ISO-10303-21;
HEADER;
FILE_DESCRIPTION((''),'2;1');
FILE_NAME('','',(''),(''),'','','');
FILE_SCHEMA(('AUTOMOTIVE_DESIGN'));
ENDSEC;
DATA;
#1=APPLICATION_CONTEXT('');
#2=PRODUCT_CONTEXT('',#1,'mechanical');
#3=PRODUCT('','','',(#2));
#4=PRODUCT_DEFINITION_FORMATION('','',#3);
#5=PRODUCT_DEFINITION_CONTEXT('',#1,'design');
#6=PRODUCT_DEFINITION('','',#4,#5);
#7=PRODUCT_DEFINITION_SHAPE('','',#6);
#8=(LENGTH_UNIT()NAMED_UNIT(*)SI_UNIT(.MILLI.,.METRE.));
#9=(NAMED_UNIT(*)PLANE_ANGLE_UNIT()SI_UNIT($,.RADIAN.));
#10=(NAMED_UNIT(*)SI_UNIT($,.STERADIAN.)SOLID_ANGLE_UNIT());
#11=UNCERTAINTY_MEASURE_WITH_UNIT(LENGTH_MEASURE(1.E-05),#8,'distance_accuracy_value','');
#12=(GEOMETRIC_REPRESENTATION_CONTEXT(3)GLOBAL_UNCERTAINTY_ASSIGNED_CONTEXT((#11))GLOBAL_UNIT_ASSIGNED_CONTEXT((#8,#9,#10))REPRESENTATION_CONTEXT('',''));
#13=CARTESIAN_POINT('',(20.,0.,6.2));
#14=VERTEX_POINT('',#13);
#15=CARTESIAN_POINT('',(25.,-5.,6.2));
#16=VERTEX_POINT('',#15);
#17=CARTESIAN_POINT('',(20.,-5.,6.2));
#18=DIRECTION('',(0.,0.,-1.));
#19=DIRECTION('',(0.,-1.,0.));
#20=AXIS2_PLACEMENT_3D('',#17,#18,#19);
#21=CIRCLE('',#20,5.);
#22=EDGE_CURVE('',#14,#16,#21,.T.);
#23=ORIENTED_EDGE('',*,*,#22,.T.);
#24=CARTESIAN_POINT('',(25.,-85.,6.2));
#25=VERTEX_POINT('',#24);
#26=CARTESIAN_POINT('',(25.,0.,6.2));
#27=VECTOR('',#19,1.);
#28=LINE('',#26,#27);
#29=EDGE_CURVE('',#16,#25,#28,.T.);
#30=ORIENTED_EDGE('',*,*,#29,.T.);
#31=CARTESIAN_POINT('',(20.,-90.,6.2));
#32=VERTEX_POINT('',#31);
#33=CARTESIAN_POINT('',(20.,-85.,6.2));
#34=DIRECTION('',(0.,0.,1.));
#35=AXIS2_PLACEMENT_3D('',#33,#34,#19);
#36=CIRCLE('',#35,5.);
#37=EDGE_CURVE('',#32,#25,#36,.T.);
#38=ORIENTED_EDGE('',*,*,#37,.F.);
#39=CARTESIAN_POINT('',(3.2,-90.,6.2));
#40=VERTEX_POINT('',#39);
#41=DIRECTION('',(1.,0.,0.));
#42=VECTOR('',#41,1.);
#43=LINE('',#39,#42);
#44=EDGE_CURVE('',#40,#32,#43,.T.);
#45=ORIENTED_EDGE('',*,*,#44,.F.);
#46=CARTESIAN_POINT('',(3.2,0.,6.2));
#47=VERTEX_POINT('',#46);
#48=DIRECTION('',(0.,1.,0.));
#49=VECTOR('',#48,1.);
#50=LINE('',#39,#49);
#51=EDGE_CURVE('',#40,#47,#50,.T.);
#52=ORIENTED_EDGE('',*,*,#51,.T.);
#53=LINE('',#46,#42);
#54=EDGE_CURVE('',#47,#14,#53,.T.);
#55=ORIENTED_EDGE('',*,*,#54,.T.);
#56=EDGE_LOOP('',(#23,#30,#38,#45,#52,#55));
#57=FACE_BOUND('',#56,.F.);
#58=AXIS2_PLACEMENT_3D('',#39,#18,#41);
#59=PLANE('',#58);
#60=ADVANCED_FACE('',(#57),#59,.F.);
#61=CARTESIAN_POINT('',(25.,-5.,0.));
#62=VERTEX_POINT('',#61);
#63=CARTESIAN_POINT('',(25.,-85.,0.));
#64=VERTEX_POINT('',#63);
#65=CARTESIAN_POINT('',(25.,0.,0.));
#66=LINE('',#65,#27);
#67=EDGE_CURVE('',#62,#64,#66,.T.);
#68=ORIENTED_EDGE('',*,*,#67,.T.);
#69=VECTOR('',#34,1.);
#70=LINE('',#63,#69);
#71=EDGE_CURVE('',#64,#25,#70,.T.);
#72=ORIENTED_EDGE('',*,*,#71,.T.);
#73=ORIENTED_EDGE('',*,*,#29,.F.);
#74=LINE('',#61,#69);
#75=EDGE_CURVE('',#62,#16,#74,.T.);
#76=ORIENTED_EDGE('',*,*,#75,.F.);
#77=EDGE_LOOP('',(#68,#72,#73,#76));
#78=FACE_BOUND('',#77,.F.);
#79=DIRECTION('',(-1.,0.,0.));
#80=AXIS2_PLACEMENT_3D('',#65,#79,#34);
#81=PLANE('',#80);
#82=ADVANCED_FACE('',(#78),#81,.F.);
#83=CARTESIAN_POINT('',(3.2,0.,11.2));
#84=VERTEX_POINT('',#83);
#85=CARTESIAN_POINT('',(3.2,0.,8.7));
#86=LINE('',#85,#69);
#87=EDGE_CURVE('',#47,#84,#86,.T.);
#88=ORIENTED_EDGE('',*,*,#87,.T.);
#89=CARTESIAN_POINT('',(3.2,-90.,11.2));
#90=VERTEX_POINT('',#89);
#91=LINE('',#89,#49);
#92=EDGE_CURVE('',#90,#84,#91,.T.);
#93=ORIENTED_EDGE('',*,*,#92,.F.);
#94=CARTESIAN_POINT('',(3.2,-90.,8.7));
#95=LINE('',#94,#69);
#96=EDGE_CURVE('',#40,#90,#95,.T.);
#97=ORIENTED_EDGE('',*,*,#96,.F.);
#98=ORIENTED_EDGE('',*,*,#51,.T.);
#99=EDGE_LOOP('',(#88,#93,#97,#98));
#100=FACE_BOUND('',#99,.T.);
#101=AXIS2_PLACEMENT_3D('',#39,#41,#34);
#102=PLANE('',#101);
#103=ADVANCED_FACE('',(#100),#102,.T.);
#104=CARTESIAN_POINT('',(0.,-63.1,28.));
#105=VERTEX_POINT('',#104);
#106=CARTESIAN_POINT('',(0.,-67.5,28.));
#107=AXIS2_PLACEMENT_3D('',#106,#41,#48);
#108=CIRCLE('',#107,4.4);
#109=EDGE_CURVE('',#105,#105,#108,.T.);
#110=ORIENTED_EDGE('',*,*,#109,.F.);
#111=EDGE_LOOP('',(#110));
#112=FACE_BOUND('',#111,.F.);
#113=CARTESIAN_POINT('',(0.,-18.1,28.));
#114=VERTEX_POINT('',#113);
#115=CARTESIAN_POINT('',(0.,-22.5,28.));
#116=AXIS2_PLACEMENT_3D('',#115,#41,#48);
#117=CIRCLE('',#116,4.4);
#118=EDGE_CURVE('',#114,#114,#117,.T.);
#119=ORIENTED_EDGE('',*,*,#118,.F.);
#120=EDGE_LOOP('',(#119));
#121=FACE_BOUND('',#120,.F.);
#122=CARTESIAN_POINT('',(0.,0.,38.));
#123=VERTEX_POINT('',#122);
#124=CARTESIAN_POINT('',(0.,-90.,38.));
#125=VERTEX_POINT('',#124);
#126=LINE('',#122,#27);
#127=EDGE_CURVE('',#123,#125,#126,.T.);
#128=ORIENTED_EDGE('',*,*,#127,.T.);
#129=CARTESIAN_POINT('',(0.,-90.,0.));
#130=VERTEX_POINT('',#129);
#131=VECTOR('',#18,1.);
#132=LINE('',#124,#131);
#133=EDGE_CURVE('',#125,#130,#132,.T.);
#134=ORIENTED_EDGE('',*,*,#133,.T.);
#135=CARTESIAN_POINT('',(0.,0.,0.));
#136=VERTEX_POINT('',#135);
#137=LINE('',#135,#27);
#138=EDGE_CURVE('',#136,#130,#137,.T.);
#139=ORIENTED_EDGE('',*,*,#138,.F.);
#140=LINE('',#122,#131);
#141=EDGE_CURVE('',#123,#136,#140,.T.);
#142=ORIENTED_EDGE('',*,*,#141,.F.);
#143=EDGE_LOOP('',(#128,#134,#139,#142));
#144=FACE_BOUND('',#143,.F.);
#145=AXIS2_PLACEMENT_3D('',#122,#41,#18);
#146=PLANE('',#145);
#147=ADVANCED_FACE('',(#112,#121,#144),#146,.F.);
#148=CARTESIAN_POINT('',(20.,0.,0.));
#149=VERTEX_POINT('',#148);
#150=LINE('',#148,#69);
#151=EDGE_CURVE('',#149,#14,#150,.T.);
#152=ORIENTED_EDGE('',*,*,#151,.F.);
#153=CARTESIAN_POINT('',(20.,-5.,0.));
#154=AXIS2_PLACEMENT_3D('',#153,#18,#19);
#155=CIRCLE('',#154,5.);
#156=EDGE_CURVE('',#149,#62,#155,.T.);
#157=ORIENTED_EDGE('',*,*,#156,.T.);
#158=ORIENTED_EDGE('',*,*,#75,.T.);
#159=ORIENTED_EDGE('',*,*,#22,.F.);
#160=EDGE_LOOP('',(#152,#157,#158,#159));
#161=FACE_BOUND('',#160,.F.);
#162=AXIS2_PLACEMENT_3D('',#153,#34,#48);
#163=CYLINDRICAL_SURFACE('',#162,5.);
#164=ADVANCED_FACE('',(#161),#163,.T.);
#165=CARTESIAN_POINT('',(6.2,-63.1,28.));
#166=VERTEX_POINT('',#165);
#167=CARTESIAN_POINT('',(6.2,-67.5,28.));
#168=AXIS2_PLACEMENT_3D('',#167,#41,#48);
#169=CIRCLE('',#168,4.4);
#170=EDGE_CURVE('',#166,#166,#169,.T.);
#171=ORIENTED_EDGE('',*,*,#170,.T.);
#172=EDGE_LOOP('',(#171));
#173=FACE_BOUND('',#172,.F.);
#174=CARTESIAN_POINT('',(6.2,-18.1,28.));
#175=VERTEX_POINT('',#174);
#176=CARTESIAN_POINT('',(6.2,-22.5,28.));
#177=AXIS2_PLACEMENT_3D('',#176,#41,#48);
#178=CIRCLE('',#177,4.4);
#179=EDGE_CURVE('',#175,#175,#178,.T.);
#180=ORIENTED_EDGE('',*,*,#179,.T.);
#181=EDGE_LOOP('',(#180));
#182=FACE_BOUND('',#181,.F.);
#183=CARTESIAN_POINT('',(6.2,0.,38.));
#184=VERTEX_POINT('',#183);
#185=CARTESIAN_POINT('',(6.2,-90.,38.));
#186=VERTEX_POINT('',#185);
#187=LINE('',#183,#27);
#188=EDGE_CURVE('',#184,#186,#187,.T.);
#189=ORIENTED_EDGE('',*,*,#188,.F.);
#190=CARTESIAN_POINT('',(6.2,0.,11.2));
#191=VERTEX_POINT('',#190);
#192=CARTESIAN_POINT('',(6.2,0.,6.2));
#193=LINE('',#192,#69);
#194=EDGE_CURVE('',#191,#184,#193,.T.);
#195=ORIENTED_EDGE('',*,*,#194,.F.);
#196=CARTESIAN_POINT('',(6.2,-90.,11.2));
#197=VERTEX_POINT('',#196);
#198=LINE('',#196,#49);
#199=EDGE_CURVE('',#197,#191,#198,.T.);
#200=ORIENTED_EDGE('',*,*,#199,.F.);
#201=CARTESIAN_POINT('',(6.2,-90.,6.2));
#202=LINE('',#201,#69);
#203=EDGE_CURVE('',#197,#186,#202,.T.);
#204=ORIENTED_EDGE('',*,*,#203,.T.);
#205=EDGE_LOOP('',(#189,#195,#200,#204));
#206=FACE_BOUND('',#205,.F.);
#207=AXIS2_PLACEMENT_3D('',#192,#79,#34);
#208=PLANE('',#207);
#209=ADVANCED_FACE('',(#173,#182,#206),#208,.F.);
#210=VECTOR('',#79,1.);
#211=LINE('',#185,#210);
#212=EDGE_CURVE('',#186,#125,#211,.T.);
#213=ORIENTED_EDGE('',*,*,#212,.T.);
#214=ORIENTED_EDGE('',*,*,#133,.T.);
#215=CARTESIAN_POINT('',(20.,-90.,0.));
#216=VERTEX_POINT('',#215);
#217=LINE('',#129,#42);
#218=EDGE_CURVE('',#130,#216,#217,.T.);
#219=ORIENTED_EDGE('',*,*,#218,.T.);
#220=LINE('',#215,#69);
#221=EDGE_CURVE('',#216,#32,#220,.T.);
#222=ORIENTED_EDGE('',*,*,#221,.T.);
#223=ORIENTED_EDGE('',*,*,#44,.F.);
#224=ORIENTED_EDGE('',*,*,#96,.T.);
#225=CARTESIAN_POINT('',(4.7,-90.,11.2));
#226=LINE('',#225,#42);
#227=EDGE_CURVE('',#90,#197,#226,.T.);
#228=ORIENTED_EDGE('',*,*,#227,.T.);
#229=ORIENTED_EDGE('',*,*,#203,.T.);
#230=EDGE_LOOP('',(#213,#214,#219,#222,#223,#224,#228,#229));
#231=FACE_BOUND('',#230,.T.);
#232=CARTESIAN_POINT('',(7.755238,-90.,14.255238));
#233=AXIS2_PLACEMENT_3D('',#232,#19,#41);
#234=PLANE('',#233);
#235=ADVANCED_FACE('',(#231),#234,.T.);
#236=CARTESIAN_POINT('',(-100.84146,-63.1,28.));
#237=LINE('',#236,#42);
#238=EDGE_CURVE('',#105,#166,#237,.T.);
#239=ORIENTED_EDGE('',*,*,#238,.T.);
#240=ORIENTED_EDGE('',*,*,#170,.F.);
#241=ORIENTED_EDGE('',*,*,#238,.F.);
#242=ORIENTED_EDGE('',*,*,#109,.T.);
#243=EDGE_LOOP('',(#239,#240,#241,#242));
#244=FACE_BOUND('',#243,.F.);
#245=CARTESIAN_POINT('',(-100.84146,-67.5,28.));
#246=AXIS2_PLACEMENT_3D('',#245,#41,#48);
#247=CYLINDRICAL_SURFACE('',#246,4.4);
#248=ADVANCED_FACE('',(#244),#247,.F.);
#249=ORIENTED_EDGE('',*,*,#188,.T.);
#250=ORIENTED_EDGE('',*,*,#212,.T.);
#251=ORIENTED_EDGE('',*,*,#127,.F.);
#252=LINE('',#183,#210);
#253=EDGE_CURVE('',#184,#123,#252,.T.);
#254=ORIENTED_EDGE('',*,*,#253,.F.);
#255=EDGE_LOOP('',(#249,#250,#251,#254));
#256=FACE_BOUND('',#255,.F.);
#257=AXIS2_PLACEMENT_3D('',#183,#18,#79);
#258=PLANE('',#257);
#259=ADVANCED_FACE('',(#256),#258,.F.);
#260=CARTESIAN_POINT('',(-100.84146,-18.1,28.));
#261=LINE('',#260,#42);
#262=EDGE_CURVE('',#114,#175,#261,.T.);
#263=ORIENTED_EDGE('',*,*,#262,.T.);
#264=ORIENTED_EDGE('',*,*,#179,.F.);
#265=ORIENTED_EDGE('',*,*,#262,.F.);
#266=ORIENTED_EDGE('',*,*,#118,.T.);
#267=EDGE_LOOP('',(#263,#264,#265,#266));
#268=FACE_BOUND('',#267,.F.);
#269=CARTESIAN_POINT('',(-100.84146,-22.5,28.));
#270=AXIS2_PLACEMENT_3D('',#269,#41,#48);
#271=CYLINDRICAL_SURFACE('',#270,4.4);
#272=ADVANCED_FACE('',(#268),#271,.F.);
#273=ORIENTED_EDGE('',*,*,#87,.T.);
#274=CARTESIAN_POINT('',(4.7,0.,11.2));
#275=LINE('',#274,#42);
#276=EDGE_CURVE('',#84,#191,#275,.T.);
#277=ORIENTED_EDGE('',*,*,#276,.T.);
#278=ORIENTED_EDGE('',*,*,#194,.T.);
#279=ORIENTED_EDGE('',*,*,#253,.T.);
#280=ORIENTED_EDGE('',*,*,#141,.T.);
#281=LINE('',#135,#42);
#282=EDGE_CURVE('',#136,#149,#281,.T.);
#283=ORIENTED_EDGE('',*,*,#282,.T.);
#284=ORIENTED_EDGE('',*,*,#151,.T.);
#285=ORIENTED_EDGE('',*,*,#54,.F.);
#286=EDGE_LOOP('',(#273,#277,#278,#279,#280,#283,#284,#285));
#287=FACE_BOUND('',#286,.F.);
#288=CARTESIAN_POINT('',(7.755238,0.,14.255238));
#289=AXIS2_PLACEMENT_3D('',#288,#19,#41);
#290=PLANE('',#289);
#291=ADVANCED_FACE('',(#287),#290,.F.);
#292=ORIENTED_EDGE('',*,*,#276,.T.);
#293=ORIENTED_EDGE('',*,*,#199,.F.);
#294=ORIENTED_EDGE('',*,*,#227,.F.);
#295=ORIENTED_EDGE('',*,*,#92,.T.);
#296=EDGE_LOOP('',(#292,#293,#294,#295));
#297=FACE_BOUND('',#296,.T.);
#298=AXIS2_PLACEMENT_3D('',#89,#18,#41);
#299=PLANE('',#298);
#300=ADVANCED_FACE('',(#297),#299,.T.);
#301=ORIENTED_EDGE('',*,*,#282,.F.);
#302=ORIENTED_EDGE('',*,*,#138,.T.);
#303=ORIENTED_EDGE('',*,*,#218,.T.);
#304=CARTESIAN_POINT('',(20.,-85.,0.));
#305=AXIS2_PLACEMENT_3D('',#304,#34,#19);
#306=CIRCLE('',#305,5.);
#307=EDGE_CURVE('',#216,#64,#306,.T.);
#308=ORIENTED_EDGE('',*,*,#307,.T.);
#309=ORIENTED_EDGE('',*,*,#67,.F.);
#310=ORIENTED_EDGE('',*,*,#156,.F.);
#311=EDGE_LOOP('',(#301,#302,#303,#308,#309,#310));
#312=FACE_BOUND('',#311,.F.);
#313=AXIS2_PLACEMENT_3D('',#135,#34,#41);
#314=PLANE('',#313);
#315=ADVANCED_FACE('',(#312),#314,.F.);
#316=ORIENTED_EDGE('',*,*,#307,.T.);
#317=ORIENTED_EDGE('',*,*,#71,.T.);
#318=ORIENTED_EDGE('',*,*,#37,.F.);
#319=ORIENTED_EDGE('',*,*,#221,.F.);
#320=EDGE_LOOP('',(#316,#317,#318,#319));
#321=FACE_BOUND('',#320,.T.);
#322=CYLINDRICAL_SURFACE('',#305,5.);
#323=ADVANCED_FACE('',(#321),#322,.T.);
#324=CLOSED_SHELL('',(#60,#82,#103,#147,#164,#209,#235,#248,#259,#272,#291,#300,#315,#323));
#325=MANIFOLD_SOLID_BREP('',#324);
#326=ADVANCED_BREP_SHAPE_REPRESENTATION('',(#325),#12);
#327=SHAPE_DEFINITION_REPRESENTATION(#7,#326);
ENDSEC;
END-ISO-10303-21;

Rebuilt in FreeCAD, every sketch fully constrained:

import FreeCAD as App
import Part
import Sketcher
Q = App.Units.Quantity


def edges_at(feature, points):
    """Names of the edges that pass closest to the given points."""
    edges = feature.Shape.Edges
    near = lambda p: min(range(len(edges)), key=lambda i: edges[i].distToShape(Part.Vertex(*p))[0])
    return sorted({f"Edge{near(p) + 1}" for p in points})

doc = App.newDocument("Part")
body = doc.addObject("PartDesign::Body", "Body")

sketch1 = body.newObject("Sketcher::SketchObject", "Sketch")
sketch1.AttachmentSupport = (doc.getObject("XZ_Plane"), [""])
sketch1.MapMode = "FlatFace"
sketch1.addGeometry([
    Part.LineSegment(App.Vector(0, 38, 0), App.Vector(0, 0, 0)),
    Part.LineSegment(App.Vector(0, 0, 0), App.Vector(25, 0, 0)),
    Part.LineSegment(App.Vector(25, 0, 0), App.Vector(25, 6, 0)),
    Part.LineSegment(App.Vector(25, 6, 0), App.Vector(6, 6, 0)),
    Part.LineSegment(App.Vector(6, 6, 0), App.Vector(6, 38, 0)),
    Part.LineSegment(App.Vector(6, 38, 0), App.Vector(0, 38, 0)),
], False)
sketch1.addConstraint([
    Sketcher.Constraint("Coincident", 0, 2, 1, 1),
    Sketcher.Constraint("Coincident", 1, 2, 2, 1),
    Sketcher.Constraint("Coincident", 2, 2, 3, 1),
    Sketcher.Constraint("Coincident", 3, 2, 4, 1),
    Sketcher.Constraint("Coincident", 4, 2, 5, 1),
    Sketcher.Constraint("Coincident", 5, 2, 0, 1),
    Sketcher.Constraint("Vertical", 0),
    Sketcher.Constraint("Horizontal", 1),
    Sketcher.Constraint("Vertical", 2),
    Sketcher.Constraint("Horizontal", 3),
    Sketcher.Constraint("Vertical", 4),
    Sketcher.Constraint("Horizontal", 5),
    Sketcher.Constraint("Coincident", 0, 2, -1, 1),
    Sketcher.Constraint("Equal", 5, 2),
    Sketcher.Constraint("DistanceX", 1, 1, 1, 2, Q("25 mm")),
    Sketcher.Constraint("DistanceY", 0, 2, 0, 1, Q("38 mm")),
    Sketcher.Constraint("DistanceX", 3, 2, 3, 1, Q("18.8 mm")),
])
pad1 = body.newObject("PartDesign::Pad", "Pad")
pad1.Profile = sketch1
pad1.Length = 90

sketch2 = body.newObject("Sketcher::SketchObject", "Sketch001")
sketch2.AttachmentSupport = (doc.getObject("YZ_Plane"), [""])
sketch2.MapMode = "FlatFace"
sketch2.addGeometry([
    Part.Circle(App.Vector(-67.5, 28, 0), App.Vector(0, 0, 1), 4.4),
    Part.Circle(App.Vector(-22.5, 28, 0), App.Vector(0, 0, 1), 4.4),
], False)
sketch2.addConstraint([
    Sketcher.Constraint("Equal", 0, 1),
    Sketcher.Constraint("Horizontal", 0, 3, 1, 3),
    Sketcher.Constraint("Diameter", 0, Q("8.8 mm")),
    Sketcher.Constraint("DistanceY", -1, 1, 0, 3, Q("28 mm")),
    Sketcher.Constraint("DistanceX", 0, 3, 1, 3, Q("45 mm")),
    Sketcher.Constraint("DistanceX", 0, 3, -1, 1, Q("67.5 mm")),
])
doc.recompute()
hole = body.newObject("PartDesign::Hole", "Hole")
hole.Profile = sketch2
hole.ThreadType = "None"
hole.Diameter = 8.8
hole.DepthType = "ThroughAll"
hole.Reversed = True
doc.recompute()

fillet = body.newObject("PartDesign::Fillet", "Fillet")
fillet.Base = (hole, edges_at(hole, [(25, -90, 3.1), (25, 0, 3.1)]))
fillet.Radius = 5

sketch3 = body.newObject("Sketcher::SketchObject", "Sketch002")
sketch3.AttachmentSupport = (doc.getObject("XZ_Plane"), [""])
sketch3.MapMode = "FlatFace"
sketch3.AttachmentOffset = App.Placement(App.Vector(0, 0, 90), App.Rotation())
sketch3.addGeometry([
    Part.LineSegment(App.Vector(3.2, 11.2, 0), App.Vector(3.2, 6.2, 0)),
    Part.LineSegment(App.Vector(3.2, 6.2, 0), App.Vector(6.2, 6.2, 0)),
    Part.LineSegment(App.Vector(6.2, 6.2, 0), App.Vector(6.2, 11.2, 0)),
    Part.LineSegment(App.Vector(6.2, 11.2, 0), App.Vector(3.2, 11.2, 0)),
], False)
sketch3.addConstraint([
    Sketcher.Constraint("Coincident", 0, 2, 1, 1),
    Sketcher.Constraint("Coincident", 1, 2, 2, 1),
    Sketcher.Constraint("Coincident", 2, 2, 3, 1),
    Sketcher.Constraint("Coincident", 3, 2, 0, 1),
    Sketcher.Constraint("Vertical", 0),
    Sketcher.Constraint("Horizontal", 1),
    Sketcher.Constraint("Vertical", 2),
    Sketcher.Constraint("Horizontal", 3),
    Sketcher.Constraint("DistanceX", 1, 1, 1, 2, Q("3 mm")),
    Sketcher.Constraint("DistanceY", 0, 2, 0, 1, Q("5 mm")),
    Sketcher.Constraint("DistanceX", -1, 1, 0, 2, Q("3.2 mm")),
    Sketcher.Constraint("DistanceY", -1, 1, 0, 2, Q("6.2 mm")),
])
pocket1 = body.newObject("PartDesign::Pocket", "Pocket")
pocket1.Profile = sketch3
pocket1.Length = 90

doc.recompute()
